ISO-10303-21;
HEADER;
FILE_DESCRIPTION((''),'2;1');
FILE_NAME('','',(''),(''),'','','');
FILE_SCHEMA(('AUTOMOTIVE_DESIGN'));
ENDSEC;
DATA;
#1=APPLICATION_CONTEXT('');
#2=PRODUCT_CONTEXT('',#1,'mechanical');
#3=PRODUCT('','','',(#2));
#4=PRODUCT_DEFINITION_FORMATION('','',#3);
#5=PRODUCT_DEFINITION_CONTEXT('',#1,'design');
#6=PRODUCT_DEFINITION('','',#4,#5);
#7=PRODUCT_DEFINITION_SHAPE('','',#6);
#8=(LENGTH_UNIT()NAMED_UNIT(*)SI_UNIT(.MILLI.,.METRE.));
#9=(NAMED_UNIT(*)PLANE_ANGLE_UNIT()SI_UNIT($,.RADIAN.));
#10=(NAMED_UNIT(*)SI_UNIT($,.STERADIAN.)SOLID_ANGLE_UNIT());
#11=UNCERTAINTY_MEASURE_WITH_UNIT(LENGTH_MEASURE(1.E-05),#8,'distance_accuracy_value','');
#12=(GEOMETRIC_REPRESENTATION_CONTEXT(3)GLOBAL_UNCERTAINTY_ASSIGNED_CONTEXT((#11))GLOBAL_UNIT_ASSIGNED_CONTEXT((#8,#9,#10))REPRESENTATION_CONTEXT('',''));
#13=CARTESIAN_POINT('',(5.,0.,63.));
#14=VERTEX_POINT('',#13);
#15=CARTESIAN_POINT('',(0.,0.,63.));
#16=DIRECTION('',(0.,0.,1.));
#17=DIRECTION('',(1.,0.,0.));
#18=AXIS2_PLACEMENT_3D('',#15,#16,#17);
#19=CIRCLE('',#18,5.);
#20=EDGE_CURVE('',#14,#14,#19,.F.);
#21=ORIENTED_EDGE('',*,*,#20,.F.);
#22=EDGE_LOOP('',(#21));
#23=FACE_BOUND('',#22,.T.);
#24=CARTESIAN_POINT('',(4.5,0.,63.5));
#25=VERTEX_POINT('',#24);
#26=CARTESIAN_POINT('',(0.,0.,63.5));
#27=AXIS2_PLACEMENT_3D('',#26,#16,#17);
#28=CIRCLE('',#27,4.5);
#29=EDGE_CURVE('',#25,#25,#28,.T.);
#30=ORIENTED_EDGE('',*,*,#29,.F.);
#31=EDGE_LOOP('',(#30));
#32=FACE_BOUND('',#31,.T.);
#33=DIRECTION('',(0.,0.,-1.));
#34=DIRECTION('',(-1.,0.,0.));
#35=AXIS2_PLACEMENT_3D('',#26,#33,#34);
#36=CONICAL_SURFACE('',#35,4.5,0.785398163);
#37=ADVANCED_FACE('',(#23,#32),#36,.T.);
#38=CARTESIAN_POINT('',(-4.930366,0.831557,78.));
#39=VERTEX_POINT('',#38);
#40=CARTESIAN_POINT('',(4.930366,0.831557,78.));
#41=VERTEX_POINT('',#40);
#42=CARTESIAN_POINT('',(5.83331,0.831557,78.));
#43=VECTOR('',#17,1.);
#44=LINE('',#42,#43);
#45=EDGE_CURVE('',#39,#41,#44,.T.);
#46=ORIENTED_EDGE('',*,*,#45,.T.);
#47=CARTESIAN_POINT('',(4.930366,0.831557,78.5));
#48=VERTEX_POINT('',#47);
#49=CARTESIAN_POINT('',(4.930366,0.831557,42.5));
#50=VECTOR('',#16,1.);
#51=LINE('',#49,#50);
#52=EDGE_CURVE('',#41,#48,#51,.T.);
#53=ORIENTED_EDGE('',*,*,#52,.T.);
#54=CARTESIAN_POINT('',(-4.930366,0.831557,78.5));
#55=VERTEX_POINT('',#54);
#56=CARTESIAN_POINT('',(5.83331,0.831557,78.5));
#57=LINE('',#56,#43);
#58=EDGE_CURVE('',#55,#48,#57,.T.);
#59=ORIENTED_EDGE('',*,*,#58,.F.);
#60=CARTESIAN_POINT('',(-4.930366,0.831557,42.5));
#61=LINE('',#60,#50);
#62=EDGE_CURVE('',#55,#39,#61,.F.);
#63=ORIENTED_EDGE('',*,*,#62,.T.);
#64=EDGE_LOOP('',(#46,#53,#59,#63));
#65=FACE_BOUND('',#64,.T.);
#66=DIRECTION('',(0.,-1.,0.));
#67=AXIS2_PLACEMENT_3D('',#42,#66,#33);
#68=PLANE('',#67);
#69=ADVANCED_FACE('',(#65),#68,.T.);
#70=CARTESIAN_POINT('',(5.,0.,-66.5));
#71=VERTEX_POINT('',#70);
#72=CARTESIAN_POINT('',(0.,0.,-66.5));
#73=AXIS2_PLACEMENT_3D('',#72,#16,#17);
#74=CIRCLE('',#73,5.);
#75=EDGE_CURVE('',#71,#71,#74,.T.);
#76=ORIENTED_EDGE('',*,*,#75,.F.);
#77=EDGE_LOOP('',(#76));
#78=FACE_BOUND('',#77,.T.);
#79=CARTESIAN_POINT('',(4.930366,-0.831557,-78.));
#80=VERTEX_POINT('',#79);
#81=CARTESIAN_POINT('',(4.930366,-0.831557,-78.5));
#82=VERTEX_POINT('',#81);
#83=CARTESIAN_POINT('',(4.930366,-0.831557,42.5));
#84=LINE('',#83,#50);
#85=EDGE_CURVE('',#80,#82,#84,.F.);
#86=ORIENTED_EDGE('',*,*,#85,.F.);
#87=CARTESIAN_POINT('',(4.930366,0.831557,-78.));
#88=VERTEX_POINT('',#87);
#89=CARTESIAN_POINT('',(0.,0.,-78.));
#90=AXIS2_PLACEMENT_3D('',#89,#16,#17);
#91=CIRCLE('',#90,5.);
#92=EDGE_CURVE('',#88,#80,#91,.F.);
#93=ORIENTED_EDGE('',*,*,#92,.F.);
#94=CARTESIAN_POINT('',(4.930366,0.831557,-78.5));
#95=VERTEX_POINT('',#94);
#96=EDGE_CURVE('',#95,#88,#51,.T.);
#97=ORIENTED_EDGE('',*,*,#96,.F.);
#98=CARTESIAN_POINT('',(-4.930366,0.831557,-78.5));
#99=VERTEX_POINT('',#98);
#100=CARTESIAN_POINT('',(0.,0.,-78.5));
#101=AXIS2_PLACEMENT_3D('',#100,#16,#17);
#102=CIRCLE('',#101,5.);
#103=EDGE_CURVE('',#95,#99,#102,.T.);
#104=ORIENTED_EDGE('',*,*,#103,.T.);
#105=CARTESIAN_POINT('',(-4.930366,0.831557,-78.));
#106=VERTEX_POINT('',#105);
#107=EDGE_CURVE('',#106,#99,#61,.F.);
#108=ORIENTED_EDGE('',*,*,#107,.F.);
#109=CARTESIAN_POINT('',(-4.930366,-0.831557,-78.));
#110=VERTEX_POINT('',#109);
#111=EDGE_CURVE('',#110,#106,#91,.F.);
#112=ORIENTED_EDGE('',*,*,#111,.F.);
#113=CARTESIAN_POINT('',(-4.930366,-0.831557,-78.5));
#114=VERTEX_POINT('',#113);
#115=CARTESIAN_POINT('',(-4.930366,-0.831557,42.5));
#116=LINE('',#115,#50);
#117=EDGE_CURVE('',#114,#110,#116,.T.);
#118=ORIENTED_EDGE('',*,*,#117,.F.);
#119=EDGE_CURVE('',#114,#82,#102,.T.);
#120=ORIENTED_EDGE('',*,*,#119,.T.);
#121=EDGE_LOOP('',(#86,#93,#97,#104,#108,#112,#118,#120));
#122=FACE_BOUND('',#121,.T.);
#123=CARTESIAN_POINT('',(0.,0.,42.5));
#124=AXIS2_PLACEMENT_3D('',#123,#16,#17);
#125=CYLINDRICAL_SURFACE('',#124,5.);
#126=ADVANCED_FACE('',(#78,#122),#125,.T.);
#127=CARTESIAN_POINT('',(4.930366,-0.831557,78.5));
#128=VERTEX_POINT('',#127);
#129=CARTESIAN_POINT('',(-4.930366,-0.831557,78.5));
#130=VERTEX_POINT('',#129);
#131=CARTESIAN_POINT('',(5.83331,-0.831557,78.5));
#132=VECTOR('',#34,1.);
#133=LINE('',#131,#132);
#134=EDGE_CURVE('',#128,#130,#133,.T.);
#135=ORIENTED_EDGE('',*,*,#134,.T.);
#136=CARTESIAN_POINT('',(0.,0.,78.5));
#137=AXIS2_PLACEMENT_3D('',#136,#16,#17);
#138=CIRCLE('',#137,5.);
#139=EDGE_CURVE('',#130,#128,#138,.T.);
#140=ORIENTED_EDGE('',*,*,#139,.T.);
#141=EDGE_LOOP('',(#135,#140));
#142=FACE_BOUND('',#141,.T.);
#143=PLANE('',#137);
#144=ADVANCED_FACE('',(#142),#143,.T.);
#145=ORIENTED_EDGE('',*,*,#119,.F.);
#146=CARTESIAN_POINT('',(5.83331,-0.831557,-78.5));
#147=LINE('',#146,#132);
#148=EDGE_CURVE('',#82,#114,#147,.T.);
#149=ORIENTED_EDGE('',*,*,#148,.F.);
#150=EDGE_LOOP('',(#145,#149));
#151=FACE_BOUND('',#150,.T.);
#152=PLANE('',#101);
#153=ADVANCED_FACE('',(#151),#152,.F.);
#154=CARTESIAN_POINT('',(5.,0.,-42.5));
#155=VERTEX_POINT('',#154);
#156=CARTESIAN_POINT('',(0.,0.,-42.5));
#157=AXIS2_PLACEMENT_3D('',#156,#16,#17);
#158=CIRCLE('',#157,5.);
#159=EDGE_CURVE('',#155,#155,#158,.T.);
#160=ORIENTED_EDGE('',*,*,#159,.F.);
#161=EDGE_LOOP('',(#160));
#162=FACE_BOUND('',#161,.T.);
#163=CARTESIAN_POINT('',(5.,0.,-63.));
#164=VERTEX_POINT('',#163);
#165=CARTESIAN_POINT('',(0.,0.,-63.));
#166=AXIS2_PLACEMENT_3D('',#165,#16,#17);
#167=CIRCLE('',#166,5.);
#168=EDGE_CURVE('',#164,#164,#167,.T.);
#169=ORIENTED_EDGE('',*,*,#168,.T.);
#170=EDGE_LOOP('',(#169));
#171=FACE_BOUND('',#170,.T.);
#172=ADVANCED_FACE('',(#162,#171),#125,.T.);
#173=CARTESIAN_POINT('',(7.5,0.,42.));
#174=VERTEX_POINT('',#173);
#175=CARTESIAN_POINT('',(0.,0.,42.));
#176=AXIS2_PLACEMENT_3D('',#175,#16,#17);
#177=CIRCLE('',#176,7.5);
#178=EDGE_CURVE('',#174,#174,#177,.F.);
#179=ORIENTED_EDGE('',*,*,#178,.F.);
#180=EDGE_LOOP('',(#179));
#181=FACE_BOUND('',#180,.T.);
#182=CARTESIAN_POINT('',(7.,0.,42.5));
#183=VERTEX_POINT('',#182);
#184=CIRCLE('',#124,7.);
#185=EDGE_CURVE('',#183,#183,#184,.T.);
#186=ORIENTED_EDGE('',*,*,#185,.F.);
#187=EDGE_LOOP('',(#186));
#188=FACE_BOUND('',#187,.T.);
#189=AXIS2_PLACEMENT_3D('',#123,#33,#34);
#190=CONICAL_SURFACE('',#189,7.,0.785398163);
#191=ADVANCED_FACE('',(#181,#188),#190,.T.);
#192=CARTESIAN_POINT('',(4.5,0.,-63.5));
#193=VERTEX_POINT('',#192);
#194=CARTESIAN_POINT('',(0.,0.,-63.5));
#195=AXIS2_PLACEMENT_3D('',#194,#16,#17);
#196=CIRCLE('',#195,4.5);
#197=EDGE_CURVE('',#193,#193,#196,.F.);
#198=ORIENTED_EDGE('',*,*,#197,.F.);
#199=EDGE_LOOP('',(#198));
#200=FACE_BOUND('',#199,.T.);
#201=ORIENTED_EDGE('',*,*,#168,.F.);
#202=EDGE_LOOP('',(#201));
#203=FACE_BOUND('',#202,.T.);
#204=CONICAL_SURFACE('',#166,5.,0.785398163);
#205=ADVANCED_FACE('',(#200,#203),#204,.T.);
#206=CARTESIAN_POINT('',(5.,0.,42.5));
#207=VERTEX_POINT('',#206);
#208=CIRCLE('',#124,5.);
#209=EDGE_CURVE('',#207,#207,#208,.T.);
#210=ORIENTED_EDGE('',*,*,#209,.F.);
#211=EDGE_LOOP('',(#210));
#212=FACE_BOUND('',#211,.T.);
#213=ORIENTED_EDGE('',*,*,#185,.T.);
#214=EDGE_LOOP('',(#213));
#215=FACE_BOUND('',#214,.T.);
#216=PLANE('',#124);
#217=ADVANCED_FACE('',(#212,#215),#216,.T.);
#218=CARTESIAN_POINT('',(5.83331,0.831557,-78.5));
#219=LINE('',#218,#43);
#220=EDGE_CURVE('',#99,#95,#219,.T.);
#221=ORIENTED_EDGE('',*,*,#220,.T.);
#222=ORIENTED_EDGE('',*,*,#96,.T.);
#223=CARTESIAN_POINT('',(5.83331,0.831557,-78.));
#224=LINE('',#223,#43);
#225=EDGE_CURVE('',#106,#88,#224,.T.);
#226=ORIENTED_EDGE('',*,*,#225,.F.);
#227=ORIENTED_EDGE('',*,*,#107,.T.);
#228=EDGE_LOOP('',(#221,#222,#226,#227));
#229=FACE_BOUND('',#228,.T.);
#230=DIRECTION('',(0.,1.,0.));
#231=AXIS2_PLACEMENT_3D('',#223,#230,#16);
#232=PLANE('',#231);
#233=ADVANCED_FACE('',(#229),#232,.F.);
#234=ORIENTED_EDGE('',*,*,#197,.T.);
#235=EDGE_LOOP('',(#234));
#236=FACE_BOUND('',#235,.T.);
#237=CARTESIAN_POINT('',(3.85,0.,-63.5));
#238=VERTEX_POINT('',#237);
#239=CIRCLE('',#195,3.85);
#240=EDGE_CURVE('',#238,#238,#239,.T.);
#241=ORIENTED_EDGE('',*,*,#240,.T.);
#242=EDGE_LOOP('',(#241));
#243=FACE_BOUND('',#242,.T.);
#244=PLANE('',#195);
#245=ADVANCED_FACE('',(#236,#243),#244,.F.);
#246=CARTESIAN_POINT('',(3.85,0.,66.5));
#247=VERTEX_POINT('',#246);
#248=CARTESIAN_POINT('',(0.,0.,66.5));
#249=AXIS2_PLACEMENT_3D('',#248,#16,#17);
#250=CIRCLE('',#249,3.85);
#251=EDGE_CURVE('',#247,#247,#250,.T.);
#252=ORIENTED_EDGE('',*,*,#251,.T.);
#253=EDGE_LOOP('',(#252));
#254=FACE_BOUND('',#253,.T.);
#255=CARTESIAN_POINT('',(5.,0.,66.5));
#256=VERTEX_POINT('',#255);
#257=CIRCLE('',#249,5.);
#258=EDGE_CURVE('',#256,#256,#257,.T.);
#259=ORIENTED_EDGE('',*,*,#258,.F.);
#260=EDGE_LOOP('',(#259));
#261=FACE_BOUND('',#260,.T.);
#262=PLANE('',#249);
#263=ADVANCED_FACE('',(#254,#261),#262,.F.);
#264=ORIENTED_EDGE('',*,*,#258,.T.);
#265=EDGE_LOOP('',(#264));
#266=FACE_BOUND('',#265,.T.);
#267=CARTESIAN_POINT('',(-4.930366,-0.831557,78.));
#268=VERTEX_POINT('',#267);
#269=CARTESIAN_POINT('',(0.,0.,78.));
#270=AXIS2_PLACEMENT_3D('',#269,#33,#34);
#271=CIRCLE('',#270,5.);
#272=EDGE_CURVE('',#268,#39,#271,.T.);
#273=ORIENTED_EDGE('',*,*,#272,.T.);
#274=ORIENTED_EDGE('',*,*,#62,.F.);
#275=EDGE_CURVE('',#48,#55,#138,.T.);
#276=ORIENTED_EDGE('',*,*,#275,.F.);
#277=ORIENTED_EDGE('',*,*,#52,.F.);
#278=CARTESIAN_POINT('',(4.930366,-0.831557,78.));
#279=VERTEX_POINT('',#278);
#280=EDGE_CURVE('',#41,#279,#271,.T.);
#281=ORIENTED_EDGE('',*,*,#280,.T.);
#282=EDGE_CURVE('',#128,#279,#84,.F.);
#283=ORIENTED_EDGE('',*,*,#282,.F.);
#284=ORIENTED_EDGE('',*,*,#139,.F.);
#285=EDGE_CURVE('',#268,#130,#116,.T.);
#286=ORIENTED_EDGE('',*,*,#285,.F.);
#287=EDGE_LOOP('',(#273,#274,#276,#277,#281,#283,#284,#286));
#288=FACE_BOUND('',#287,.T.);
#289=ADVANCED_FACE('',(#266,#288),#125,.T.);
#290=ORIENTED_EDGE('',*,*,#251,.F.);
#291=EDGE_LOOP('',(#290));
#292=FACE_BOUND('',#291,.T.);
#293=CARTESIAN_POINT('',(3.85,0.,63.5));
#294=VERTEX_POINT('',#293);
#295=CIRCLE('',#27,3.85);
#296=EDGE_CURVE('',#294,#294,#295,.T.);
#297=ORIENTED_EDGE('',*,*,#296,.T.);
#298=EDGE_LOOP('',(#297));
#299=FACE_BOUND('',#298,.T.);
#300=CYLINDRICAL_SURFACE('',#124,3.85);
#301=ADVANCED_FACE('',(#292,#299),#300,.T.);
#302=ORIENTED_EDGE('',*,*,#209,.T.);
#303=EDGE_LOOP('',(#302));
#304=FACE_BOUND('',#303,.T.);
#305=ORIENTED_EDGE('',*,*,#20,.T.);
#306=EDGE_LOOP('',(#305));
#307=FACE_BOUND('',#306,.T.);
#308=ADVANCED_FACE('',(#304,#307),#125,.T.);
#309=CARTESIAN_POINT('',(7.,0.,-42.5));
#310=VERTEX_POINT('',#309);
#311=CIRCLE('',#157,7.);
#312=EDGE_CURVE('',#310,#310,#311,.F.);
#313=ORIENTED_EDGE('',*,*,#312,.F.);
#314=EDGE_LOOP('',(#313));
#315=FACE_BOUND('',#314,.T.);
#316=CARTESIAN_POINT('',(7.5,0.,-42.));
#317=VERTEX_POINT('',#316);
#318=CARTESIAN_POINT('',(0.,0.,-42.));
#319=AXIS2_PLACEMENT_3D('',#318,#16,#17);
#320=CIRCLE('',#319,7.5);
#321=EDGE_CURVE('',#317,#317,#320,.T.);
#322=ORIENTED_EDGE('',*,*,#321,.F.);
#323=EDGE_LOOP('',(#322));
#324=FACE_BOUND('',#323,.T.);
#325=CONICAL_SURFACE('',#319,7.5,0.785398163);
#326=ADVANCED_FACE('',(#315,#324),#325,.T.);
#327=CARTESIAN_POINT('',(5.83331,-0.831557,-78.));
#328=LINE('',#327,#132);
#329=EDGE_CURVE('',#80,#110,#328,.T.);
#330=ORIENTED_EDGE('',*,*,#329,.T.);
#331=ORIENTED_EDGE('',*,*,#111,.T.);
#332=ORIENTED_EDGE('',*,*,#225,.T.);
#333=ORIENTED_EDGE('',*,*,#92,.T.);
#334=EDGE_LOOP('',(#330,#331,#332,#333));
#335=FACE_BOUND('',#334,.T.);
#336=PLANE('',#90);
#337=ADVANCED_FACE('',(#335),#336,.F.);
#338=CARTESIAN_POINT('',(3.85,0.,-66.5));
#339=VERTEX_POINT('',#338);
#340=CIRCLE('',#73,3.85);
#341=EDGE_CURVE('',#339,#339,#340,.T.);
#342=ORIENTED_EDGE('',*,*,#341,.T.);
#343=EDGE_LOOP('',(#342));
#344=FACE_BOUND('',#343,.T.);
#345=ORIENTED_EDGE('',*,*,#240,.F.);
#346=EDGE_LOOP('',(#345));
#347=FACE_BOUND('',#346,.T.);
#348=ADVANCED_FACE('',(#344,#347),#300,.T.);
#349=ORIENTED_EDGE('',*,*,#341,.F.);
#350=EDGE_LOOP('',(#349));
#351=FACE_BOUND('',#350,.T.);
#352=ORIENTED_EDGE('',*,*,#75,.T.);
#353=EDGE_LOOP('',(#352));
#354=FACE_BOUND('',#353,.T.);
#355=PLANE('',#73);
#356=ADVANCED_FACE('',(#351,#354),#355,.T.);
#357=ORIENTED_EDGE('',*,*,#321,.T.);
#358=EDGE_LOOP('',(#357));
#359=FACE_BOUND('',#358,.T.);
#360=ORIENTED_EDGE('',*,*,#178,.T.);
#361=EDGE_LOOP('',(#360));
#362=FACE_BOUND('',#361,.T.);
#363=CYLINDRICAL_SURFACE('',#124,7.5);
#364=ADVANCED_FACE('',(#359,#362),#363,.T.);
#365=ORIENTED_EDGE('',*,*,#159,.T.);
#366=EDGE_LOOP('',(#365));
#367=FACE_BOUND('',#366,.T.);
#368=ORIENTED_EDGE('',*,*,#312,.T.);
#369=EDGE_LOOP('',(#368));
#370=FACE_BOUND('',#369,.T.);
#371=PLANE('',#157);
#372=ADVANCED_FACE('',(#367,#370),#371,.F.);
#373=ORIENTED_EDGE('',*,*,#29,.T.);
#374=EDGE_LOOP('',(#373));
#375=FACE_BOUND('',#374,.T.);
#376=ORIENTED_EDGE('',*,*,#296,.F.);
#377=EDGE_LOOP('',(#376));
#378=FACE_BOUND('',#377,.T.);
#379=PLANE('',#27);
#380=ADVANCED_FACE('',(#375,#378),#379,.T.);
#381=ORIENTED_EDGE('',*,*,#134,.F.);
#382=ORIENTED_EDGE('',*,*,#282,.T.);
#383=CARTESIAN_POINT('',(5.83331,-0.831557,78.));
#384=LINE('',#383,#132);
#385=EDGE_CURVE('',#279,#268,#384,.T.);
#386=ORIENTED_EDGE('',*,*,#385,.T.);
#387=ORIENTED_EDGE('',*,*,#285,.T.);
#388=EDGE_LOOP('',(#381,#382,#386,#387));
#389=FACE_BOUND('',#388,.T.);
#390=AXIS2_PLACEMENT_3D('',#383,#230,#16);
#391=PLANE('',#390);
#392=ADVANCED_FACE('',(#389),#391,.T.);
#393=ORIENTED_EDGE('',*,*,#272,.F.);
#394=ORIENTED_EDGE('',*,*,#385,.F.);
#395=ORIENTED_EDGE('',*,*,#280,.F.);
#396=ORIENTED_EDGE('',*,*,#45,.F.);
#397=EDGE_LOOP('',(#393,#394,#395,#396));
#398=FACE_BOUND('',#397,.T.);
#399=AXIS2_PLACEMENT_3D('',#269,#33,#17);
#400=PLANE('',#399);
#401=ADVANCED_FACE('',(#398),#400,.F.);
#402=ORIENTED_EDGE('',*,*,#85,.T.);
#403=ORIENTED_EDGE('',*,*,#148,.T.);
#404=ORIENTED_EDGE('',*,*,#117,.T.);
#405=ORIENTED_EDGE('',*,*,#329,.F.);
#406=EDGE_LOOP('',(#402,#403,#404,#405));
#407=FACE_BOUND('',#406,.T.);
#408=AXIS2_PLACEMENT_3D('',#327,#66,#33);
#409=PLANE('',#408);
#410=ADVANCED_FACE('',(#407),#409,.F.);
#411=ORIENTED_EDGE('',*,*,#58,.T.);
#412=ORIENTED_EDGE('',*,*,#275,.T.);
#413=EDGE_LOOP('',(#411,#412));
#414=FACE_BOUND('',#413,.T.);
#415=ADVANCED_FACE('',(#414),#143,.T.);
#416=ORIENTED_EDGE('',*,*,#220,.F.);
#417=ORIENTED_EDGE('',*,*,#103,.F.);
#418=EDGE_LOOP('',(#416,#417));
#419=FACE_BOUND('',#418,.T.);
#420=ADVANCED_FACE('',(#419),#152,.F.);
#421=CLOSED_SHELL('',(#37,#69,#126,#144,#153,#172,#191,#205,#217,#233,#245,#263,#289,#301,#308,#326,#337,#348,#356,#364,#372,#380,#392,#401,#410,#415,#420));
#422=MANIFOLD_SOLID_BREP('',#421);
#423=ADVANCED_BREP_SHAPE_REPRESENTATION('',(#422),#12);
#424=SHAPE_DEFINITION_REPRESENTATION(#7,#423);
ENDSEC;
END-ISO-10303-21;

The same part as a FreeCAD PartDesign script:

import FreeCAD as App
import Part
import Sketcher
Q = App.Units.Quantity


def edges_at(feature, points):
    """Names of the edges that pass closest to the given points."""
    edges = feature.Shape.Edges
    near = lambda p: min(range(len(edges)), key=lambda i: edges[i].distToShape(Part.Vertex(*p))[0])
    return sorted({f"Edge{near(p) + 1}" for p in points})


def add_polygon(sketch, points):
    """Adds a closed chain of lines whose ends are joined by coincident constraints."""
    first, n = sketch.GeometryCount, len(points)
    for a, b in zip(points, points[1:] + points[:1]):
        sketch.addGeometry(Part.LineSegment(App.Vector(*a, 0), App.Vector(*b, 0)), False)
    for i in range(n):
        sketch.addConstraint(Sketcher.Constraint("Coincident", first + i, 2, first + (i + 1) % n, 1))

doc = App.newDocument("Part")
body = doc.addObject("PartDesign::Body", "Body")

sketch1 = body.newObject("Sketcher::SketchObject", "Sketch")
sketch1.AttachmentSupport = (doc.getObject("YZ_Plane"), [""])
sketch1.MapMode = "FlatFace"
add_polygon(sketch1, [(0, 78.5), (0, -78.5), (5, -78.5), (5, -66.5), (3.9, -66.5), (3.9, -63.5), (5, -63.5), (5, -42.5), (7.5, -42.5), (7.5, 42.5), (5, 42.5), (5, 63.5), (3.9, 63.5), (3.9, 66.5), (5, 66.5), (5, 78.5)])
sketch1.addConstraint([
    Sketcher.Constraint("Vertical", 0),
    Sketcher.Constraint("Horizontal", 1),
    Sketcher.Constraint("Vertical", 2),
    Sketcher.Constraint("Horizontal", 3),
    Sketcher.Constraint("Vertical", 4),
    Sketcher.Constraint("Horizontal", 5),
    Sketcher.Constraint("Vertical", 6),
    Sketcher.Constraint("Horizontal", 7),
    Sketcher.Constraint("Vertical", 8),
    Sketcher.Constraint("Horizontal", 9),
    Sketcher.Constraint("Vertical", 10),
    Sketcher.Constraint("Horizontal", 11),
    Sketcher.Constraint("Vertical", 12),
    Sketcher.Constraint("Horizontal", 13),
    Sketcher.Constraint("Vertical", 14),
    Sketcher.Constraint("Horizontal", 15),
    Sketcher.Constraint("Symmetric", 0, 2, 15, 2, -1, 1),
    Sketcher.Constraint("Symmetric", 6, 2, 9, 2, -1),
    Sketcher.Constraint("Symmetric", 4, 2, 11, 2, -1),
    Sketcher.Constraint("Symmetric", 2, 2, 13, 2, -1),
    Sketcher.Constraint("Vertical", 2, 2, 5, 2),
    Sketcher.Constraint("DistanceX", 1, 1, 1, 2, Q("5 mm")),
    Sketcher.Constraint("DistanceY", 0, 2, 0, 1, Q("157 mm")),
    Sketcher.Constraint("DistanceY", 2, 1, 2, 2, Q("12 mm")),
    Sketcher.Constraint("DistanceY", 4, 1, 4, 2, Q("3 mm")),
    Sketcher.Constraint("DistanceY", 6, 1, 6, 2, Q("21 mm")),
    Sketcher.Constraint("DistanceX", 7, 1, 7, 2, Q("2.5 mm")),
    Sketcher.Constraint("DistanceX", 3, 2, 3, 1, Q("1.15 mm")),
])
revolution = body.newObject("PartDesign::Revolution", "Revolution")
revolution.Profile = sketch1
revolution.ReferenceAxis = (sketch1, ["V_Axis"])
revolution.Angle = 360
doc.recompute()

chamfer = body.newObject("PartDesign::Chamfer", "Chamfer")
chamfer.Base = (revolution, edges_at(revolution, [
    (0, -5, 63.5),
    (0, -7.5, 42.5),
    (0, -7.5, -42.5),
    (0, -5, -63.5),
]))
chamfer.Size = 0.5

sketch2 = body.newObject("Sketcher::SketchObject", "Sketch001")
sketch2.AttachmentSupport = (doc.getObject("XY_Plane"), [""])
sketch2.MapMode = "FlatFace"
sketch2.AttachmentOffset = App.Placement(App.Vector(0, 0, -78.5), App.Rotation())
add_polygon(sketch2, [(5.8, 0.8), (5.8, -0.8), (-5.8, -0.8), (-5.8, 0.8)])
sketch2.addConstraint([
    Sketcher.Constraint("Vertical", 0),
    Sketcher.Constraint("Horizontal", 1),
    Sketcher.Constraint("Vertical", 2),
    Sketcher.Constraint("Horizontal", 3),
    Sketcher.Constraint("Symmetric", 0, 2, 2, 2, -1, 1),
    Sketcher.Constraint("DistanceX", 1, 2, 1, 1, Q("11.66662 mm")),
    Sketcher.Constraint("DistanceY", 0, 2, 0, 1, Q("1.663114 mm")),
])
pocket1 = body.newObject("PartDesign::Pocket", "Pocket")
pocket1.Profile = sketch2
pocket1.Length = 0.5
pocket1.Reversed = True
doc.recompute()

mirrored = body.newObject("PartDesign::Mirrored", "Mirrored")
mirrored.Originals = [pocket1]
mirrored.MirrorPlane = (doc.getObject("XY_Plane"), [""])
body.Tip = mirrored

doc.recompute()
